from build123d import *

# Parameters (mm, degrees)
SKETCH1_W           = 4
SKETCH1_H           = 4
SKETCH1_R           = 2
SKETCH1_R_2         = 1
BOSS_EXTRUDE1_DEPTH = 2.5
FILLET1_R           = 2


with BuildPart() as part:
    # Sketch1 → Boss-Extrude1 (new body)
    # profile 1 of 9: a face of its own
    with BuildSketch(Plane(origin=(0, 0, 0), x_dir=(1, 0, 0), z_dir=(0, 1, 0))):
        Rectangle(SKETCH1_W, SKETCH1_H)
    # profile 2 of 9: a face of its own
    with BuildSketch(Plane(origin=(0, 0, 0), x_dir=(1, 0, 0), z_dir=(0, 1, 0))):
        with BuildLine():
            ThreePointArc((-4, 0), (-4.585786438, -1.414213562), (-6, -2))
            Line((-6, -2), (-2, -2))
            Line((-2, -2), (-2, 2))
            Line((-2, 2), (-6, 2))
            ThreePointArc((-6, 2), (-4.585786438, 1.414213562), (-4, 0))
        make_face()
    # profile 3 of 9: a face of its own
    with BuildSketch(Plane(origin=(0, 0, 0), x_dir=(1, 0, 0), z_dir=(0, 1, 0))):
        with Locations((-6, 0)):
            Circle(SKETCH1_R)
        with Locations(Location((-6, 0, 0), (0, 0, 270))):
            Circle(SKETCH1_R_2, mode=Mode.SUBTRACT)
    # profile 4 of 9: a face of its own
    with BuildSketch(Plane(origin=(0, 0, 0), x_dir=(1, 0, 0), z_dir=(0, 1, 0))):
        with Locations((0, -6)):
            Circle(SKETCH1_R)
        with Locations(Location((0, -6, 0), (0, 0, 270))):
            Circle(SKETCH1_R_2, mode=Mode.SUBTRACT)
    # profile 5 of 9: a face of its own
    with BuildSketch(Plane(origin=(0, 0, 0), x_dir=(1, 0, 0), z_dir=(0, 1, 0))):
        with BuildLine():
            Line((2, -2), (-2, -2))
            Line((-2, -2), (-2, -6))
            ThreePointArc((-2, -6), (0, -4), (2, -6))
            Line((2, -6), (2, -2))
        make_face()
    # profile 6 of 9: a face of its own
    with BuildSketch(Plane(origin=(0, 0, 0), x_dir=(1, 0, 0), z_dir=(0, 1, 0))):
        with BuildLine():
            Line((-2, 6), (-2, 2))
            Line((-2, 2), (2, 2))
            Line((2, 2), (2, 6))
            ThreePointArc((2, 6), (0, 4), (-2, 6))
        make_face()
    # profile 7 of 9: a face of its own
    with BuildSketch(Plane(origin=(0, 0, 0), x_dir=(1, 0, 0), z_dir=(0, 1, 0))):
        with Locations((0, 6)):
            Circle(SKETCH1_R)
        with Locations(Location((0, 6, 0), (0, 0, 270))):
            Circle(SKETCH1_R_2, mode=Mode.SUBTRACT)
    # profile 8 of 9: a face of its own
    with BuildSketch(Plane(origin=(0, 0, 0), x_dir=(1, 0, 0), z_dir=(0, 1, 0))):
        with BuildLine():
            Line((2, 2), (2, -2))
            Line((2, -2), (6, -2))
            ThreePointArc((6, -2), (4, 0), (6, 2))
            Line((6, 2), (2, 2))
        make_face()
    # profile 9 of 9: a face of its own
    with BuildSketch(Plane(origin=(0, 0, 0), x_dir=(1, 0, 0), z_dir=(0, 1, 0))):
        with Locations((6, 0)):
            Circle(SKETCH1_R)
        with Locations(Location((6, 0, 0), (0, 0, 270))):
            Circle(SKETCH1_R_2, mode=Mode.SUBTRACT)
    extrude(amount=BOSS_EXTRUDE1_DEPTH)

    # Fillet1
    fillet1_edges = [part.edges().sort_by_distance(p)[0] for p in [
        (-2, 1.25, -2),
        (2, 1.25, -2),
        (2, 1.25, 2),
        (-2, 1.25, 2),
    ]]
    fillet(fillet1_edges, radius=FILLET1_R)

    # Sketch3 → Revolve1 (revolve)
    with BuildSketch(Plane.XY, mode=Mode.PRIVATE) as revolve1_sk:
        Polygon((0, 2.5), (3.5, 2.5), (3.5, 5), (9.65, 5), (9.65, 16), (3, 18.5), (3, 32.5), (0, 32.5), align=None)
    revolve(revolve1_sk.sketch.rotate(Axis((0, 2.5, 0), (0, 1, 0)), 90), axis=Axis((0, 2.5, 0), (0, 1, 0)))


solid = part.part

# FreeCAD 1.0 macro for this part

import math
import FreeCAD as App
import Part
import Sketcher

V = App.Vector
Q = App.Units.Quantity


def edges_at(feature, points):
    """Names of the edges that pass closest to the given points."""
    edges = feature.Shape.Edges
    near = lambda p: min(range(len(edges)), key=lambda i: edges[i].distToShape(Part.Vertex(*p))[0])
    return sorted({f"Edge{near(p) + 1}" for p in points})

doc = App.newDocument("Part")
params = doc.addObject("Spreadsheet::Sheet", "Params")
for row, (alias, value) in enumerate([
    ("sketch1_diameter", "2 mm"),
    ("sketch1_radius", "2 mm"),
    ("sketch1_width", "4 mm"),
    ("pad1_length", "2.5 mm"),
    ("fillet_radius", "2 mm"),
    ("sketch2_width", "3 mm"),
    ("sketch2_height", "11 mm"),
    ("sketch2_height2", "14 mm"),
    ("sketch2_height3", "30 mm"),
    ("sketch2_width2", "3.5 mm"),
    ("revolution_angle", "360 deg"),
], start=1):
    params.set(f"A{row}", alias)
    params.set(f"B{row}", "=" + value)
    params.setAlias(f"B{row}", alias)

body = doc.addObject("PartDesign::Body", "Body")

sketch1 = body.newObject("Sketcher::SketchObject", "Sketch")
sketch1.AttachmentSupport = (doc.getObject("XZ_Plane"), [""])
sketch1.MapMode = "FlatFace"
sketch1.addGeometry([
    Part.LineSegment(V(-6, 2, 0), V(-2, 2, 0)),
    Part.LineSegment(V(-2, 2, 0), V(-2, 6, 0)),
    Part.ArcOfCircle(Part.Circle(V(0, 6, 0), V(0, 0, 1), 2), math.radians(0), math.radians(180)),
    Part.LineSegment(V(2, 6, 0), V(2, 2, 0)),
    Part.LineSegment(V(2, 2, 0), V(6, 2, 0)),
    Part.ArcOfCircle(Part.Circle(V(6, 0, 0), V(0, 0, 1), 2), math.radians(-90), math.radians(90)),
    Part.LineSegment(V(6, -2, 0), V(2, -2, 0)),
    Part.LineSegment(V(2, -2, 0), V(2, -6, 0)),
    Part.ArcOfCircle(Part.Circle(V(0, -6, 0), V(0, 0, 1), 2), math.radians(180), math.radians(360)),
    Part.LineSegment(V(-2, -6, 0), V(-2, -2, 0)),
    Part.LineSegment(V(-2, -2, 0), V(-6, -2, 0)),
    Part.ArcOfCircle(Part.Circle(V(-6, 0, 0), V(0, 0, 1), 2), math.radians(90), math.radians(270)),
    Part.Circle(V(-6, 0, 0), V(0, 0, 1), 1),
    Part.Circle(V(0, 6, 0), V(0, 0, 1), 1),
    Part.Circle(V(6, 0, 0), V(0, 0, 1), 1),
    Part.Circle(V(0, -6, 0), V(0, 0, 1), 1),
], False)
sketch1.addConstraint([
    Sketcher.Constraint("Coincident", 0, 2, 1, 1),
    Sketcher.Constraint("Tangent", 1, 2, 2, 2),
    Sketcher.Constraint("Tangent", 2, 1, 3, 1),
    Sketcher.Constraint("Coincident", 3, 2, 4, 1),
    Sketcher.Constraint("Tangent", 4, 2, 5, 2),
    Sketcher.Constraint("Tangent", 5, 1, 6, 1),
    Sketcher.Constraint("Coincident", 6, 2, 7, 1),
    Sketcher.Constraint("Tangent", 7, 2, 8, 2),
    Sketcher.Constraint("Tangent", 8, 1, 9, 1),
    Sketcher.Constraint("Coincident", 9, 2, 10, 1),
    Sketcher.Constraint("Tangent", 10, 2, 11, 2),
    Sketcher.Constraint("Tangent", 11, 1, 0, 1),
    Sketcher.Constraint("Horizontal", 0),
    Sketcher.Constraint("Vertical", 1),
    Sketcher.Constraint("Vertical", 3),
    Sketcher.Constraint("Horizontal", 4),
    Sketcher.Constraint("Horizontal", 6),
    Sketcher.Constraint("Vertical", 7),
    Sketcher.Constraint("Vertical", 9),
    Sketcher.Constraint("Horizontal", 10),
    Sketcher.Constraint("Coincident", 12, 3, 11, 3),
    Sketcher.Constraint("Coincident", 13, 3, 2, 3),
    Sketcher.Constraint("Coincident", 14, 3, 5, 3),
    Sketcher.Constraint("Coincident", 15, 3, 8, 3),
    Sketcher.Constraint("Equal", 2, 5),
    Sketcher.Constraint("Equal", 5, 8),
    Sketcher.Constraint("Equal", 8, 11),
    Sketcher.Constraint("Equal", 12, 13),
    Sketcher.Constraint("Equal", 13, 14),
    Sketcher.Constraint("Equal", 14, 15),
    Sketcher.Constraint("Symmetric", 2, 3, 8, 3, -1, 1),
    Sketcher.Constraint("Symmetric", 5, 3, 11, 3, -1, 1),
    Sketcher.Constraint("Symmetric", 0, 2, 3, 2, -2),
    Sketcher.Constraint("Equal", 10, 1),
    Sketcher.Constraint("Diameter", 12, Q("2 mm")),
    Sketcher.Constraint("Radius", 2, Q("2 mm")),
    Sketcher.Constraint("DistanceX", 0, 1, 0, 2, Q("4 mm")),
])
sketch1.setExpression("Constraints[34]", "Params.sketch1_diameter")
sketch1.setExpression("Constraints[35]", "Params.sketch1_radius")
sketch1.setExpression("Constraints[36]", "Params.sketch1_width")
pad1 = body.newObject("PartDesign::Pad", "Pad")
pad1.Profile = sketch1
pad1.setExpression("Length", "Params.pad1_length")
pad1.Reversed = True
doc.recompute()

fillet = body.newObject("PartDesign::Fillet", "Fillet")
fillet.Base = (pad1, edges_at(pad1, [
    (-2, 1.25, -2),
    (2, 1.25, -2),
    (2, 1.25, 2),
    (-2, 1.25, 2),
]))
fillet.setExpression("Radius", "Params.fillet_radius")

sketch2 = body.newObject("Sketcher::SketchObject", "Sketch001")
sketch2.AttachmentSupport = (doc.getObject("XY_Plane"), [""])
sketch2.MapMode = "FlatFace"
sketch2.addGeometry([
    Part.LineSegment(V(0, 2.5, 0), V(3.5, 2.5, 0)),
    Part.LineSegment(V(3.5, 2.5, 0), V(3.5, 5, 0)),
    Part.LineSegment(V(3.5, 5, 0), V(9.7, 5, 0)),
    Part.LineSegment(V(9.7, 5, 0), V(9.7, 16, 0)),
    Part.LineSegment(V(9.7, 16, 0), V(3, 18.5, 0)),
    Part.LineSegment(V(3, 18.5, 0), V(3, 32.5, 0)),
    Part.LineSegment(V(3, 32.5, 0), V(0, 32.5, 0)),
    Part.LineSegment(V(0, 32.5, 0), V(0, 2.5, 0)),
], False)
sketch2.addConstraint([
    Sketcher.Constraint("Coincident", 0, 2, 1, 1),
    Sketcher.Constraint("Coincident", 1, 2, 2, 1),
    Sketcher.Constraint("Coincident", 2, 2, 3, 1),
    Sketcher.Constraint("Coincident", 3, 2, 4, 1),
    Sketcher.Constraint("Coincident", 4, 2, 5, 1),
    Sketcher.Constraint("Coincident", 5, 2, 6, 1),
    Sketcher.Constraint("Coincident", 6, 2, 7, 1),
    Sketcher.Constraint("Coincident", 7, 2, 0, 1),
    Sketcher.Constraint("Horizontal", 0),
    Sketcher.Constraint("Vertical", 1),
    Sketcher.Constraint("Horizontal", 2),
    Sketcher.Constraint("Vertical", 3),
    Sketcher.Constraint("Vertical", 5),
    Sketcher.Constraint("Horizontal", 6),
    Sketcher.Constraint("Vertical", 7),
    Sketcher.Constraint("PointOnObject", 6, 2, -2),
    Sketcher.Constraint("DistanceX", 6, 2, 6, 1, Q("3 mm")),
    Sketcher.Constraint("DistanceY", 3, 1, 3, 2, Q("11 mm")),
    Sketcher.Constraint("DistanceY", 5, 1, 5, 2, Q("14 mm")),
    Sketcher.Constraint("DistanceY", 7, 2, 7, 1, Q("30 mm")),
    Sketcher.Constraint("DistanceX", 0, 1, 0, 2, Q("3.5 mm")),
    Sketcher.Constraint("DistanceY", 1, 1, 1, 2, Q("2.5 mm")),
    Sketcher.Constraint("DistanceY", -1, 1, 1, 2, Q("5 mm")),
    Sketcher.Constraint("DistanceX", 2, 1, 2, 2, Q("6.15 mm")),
])
sketch2.setExpression("Constraints[16]", "Params.sketch2_width")
sketch2.setExpression("Constraints[17]", "Params.sketch2_height")
sketch2.setExpression("Constraints[18]", "Params.sketch2_height2")
sketch2.setExpression("Constraints[19]", "Params.sketch2_height3")
sketch2.setExpression("Constraints[20]", "Params.sketch2_width2")
revolution = body.newObject("PartDesign::Revolution", "Revolution")
revolution.Profile = sketch2
revolution.ReferenceAxis = (sketch2, ["V_Axis"])
revolution.setExpression("Angle", "Params.revolution_angle")

doc.recompute()
